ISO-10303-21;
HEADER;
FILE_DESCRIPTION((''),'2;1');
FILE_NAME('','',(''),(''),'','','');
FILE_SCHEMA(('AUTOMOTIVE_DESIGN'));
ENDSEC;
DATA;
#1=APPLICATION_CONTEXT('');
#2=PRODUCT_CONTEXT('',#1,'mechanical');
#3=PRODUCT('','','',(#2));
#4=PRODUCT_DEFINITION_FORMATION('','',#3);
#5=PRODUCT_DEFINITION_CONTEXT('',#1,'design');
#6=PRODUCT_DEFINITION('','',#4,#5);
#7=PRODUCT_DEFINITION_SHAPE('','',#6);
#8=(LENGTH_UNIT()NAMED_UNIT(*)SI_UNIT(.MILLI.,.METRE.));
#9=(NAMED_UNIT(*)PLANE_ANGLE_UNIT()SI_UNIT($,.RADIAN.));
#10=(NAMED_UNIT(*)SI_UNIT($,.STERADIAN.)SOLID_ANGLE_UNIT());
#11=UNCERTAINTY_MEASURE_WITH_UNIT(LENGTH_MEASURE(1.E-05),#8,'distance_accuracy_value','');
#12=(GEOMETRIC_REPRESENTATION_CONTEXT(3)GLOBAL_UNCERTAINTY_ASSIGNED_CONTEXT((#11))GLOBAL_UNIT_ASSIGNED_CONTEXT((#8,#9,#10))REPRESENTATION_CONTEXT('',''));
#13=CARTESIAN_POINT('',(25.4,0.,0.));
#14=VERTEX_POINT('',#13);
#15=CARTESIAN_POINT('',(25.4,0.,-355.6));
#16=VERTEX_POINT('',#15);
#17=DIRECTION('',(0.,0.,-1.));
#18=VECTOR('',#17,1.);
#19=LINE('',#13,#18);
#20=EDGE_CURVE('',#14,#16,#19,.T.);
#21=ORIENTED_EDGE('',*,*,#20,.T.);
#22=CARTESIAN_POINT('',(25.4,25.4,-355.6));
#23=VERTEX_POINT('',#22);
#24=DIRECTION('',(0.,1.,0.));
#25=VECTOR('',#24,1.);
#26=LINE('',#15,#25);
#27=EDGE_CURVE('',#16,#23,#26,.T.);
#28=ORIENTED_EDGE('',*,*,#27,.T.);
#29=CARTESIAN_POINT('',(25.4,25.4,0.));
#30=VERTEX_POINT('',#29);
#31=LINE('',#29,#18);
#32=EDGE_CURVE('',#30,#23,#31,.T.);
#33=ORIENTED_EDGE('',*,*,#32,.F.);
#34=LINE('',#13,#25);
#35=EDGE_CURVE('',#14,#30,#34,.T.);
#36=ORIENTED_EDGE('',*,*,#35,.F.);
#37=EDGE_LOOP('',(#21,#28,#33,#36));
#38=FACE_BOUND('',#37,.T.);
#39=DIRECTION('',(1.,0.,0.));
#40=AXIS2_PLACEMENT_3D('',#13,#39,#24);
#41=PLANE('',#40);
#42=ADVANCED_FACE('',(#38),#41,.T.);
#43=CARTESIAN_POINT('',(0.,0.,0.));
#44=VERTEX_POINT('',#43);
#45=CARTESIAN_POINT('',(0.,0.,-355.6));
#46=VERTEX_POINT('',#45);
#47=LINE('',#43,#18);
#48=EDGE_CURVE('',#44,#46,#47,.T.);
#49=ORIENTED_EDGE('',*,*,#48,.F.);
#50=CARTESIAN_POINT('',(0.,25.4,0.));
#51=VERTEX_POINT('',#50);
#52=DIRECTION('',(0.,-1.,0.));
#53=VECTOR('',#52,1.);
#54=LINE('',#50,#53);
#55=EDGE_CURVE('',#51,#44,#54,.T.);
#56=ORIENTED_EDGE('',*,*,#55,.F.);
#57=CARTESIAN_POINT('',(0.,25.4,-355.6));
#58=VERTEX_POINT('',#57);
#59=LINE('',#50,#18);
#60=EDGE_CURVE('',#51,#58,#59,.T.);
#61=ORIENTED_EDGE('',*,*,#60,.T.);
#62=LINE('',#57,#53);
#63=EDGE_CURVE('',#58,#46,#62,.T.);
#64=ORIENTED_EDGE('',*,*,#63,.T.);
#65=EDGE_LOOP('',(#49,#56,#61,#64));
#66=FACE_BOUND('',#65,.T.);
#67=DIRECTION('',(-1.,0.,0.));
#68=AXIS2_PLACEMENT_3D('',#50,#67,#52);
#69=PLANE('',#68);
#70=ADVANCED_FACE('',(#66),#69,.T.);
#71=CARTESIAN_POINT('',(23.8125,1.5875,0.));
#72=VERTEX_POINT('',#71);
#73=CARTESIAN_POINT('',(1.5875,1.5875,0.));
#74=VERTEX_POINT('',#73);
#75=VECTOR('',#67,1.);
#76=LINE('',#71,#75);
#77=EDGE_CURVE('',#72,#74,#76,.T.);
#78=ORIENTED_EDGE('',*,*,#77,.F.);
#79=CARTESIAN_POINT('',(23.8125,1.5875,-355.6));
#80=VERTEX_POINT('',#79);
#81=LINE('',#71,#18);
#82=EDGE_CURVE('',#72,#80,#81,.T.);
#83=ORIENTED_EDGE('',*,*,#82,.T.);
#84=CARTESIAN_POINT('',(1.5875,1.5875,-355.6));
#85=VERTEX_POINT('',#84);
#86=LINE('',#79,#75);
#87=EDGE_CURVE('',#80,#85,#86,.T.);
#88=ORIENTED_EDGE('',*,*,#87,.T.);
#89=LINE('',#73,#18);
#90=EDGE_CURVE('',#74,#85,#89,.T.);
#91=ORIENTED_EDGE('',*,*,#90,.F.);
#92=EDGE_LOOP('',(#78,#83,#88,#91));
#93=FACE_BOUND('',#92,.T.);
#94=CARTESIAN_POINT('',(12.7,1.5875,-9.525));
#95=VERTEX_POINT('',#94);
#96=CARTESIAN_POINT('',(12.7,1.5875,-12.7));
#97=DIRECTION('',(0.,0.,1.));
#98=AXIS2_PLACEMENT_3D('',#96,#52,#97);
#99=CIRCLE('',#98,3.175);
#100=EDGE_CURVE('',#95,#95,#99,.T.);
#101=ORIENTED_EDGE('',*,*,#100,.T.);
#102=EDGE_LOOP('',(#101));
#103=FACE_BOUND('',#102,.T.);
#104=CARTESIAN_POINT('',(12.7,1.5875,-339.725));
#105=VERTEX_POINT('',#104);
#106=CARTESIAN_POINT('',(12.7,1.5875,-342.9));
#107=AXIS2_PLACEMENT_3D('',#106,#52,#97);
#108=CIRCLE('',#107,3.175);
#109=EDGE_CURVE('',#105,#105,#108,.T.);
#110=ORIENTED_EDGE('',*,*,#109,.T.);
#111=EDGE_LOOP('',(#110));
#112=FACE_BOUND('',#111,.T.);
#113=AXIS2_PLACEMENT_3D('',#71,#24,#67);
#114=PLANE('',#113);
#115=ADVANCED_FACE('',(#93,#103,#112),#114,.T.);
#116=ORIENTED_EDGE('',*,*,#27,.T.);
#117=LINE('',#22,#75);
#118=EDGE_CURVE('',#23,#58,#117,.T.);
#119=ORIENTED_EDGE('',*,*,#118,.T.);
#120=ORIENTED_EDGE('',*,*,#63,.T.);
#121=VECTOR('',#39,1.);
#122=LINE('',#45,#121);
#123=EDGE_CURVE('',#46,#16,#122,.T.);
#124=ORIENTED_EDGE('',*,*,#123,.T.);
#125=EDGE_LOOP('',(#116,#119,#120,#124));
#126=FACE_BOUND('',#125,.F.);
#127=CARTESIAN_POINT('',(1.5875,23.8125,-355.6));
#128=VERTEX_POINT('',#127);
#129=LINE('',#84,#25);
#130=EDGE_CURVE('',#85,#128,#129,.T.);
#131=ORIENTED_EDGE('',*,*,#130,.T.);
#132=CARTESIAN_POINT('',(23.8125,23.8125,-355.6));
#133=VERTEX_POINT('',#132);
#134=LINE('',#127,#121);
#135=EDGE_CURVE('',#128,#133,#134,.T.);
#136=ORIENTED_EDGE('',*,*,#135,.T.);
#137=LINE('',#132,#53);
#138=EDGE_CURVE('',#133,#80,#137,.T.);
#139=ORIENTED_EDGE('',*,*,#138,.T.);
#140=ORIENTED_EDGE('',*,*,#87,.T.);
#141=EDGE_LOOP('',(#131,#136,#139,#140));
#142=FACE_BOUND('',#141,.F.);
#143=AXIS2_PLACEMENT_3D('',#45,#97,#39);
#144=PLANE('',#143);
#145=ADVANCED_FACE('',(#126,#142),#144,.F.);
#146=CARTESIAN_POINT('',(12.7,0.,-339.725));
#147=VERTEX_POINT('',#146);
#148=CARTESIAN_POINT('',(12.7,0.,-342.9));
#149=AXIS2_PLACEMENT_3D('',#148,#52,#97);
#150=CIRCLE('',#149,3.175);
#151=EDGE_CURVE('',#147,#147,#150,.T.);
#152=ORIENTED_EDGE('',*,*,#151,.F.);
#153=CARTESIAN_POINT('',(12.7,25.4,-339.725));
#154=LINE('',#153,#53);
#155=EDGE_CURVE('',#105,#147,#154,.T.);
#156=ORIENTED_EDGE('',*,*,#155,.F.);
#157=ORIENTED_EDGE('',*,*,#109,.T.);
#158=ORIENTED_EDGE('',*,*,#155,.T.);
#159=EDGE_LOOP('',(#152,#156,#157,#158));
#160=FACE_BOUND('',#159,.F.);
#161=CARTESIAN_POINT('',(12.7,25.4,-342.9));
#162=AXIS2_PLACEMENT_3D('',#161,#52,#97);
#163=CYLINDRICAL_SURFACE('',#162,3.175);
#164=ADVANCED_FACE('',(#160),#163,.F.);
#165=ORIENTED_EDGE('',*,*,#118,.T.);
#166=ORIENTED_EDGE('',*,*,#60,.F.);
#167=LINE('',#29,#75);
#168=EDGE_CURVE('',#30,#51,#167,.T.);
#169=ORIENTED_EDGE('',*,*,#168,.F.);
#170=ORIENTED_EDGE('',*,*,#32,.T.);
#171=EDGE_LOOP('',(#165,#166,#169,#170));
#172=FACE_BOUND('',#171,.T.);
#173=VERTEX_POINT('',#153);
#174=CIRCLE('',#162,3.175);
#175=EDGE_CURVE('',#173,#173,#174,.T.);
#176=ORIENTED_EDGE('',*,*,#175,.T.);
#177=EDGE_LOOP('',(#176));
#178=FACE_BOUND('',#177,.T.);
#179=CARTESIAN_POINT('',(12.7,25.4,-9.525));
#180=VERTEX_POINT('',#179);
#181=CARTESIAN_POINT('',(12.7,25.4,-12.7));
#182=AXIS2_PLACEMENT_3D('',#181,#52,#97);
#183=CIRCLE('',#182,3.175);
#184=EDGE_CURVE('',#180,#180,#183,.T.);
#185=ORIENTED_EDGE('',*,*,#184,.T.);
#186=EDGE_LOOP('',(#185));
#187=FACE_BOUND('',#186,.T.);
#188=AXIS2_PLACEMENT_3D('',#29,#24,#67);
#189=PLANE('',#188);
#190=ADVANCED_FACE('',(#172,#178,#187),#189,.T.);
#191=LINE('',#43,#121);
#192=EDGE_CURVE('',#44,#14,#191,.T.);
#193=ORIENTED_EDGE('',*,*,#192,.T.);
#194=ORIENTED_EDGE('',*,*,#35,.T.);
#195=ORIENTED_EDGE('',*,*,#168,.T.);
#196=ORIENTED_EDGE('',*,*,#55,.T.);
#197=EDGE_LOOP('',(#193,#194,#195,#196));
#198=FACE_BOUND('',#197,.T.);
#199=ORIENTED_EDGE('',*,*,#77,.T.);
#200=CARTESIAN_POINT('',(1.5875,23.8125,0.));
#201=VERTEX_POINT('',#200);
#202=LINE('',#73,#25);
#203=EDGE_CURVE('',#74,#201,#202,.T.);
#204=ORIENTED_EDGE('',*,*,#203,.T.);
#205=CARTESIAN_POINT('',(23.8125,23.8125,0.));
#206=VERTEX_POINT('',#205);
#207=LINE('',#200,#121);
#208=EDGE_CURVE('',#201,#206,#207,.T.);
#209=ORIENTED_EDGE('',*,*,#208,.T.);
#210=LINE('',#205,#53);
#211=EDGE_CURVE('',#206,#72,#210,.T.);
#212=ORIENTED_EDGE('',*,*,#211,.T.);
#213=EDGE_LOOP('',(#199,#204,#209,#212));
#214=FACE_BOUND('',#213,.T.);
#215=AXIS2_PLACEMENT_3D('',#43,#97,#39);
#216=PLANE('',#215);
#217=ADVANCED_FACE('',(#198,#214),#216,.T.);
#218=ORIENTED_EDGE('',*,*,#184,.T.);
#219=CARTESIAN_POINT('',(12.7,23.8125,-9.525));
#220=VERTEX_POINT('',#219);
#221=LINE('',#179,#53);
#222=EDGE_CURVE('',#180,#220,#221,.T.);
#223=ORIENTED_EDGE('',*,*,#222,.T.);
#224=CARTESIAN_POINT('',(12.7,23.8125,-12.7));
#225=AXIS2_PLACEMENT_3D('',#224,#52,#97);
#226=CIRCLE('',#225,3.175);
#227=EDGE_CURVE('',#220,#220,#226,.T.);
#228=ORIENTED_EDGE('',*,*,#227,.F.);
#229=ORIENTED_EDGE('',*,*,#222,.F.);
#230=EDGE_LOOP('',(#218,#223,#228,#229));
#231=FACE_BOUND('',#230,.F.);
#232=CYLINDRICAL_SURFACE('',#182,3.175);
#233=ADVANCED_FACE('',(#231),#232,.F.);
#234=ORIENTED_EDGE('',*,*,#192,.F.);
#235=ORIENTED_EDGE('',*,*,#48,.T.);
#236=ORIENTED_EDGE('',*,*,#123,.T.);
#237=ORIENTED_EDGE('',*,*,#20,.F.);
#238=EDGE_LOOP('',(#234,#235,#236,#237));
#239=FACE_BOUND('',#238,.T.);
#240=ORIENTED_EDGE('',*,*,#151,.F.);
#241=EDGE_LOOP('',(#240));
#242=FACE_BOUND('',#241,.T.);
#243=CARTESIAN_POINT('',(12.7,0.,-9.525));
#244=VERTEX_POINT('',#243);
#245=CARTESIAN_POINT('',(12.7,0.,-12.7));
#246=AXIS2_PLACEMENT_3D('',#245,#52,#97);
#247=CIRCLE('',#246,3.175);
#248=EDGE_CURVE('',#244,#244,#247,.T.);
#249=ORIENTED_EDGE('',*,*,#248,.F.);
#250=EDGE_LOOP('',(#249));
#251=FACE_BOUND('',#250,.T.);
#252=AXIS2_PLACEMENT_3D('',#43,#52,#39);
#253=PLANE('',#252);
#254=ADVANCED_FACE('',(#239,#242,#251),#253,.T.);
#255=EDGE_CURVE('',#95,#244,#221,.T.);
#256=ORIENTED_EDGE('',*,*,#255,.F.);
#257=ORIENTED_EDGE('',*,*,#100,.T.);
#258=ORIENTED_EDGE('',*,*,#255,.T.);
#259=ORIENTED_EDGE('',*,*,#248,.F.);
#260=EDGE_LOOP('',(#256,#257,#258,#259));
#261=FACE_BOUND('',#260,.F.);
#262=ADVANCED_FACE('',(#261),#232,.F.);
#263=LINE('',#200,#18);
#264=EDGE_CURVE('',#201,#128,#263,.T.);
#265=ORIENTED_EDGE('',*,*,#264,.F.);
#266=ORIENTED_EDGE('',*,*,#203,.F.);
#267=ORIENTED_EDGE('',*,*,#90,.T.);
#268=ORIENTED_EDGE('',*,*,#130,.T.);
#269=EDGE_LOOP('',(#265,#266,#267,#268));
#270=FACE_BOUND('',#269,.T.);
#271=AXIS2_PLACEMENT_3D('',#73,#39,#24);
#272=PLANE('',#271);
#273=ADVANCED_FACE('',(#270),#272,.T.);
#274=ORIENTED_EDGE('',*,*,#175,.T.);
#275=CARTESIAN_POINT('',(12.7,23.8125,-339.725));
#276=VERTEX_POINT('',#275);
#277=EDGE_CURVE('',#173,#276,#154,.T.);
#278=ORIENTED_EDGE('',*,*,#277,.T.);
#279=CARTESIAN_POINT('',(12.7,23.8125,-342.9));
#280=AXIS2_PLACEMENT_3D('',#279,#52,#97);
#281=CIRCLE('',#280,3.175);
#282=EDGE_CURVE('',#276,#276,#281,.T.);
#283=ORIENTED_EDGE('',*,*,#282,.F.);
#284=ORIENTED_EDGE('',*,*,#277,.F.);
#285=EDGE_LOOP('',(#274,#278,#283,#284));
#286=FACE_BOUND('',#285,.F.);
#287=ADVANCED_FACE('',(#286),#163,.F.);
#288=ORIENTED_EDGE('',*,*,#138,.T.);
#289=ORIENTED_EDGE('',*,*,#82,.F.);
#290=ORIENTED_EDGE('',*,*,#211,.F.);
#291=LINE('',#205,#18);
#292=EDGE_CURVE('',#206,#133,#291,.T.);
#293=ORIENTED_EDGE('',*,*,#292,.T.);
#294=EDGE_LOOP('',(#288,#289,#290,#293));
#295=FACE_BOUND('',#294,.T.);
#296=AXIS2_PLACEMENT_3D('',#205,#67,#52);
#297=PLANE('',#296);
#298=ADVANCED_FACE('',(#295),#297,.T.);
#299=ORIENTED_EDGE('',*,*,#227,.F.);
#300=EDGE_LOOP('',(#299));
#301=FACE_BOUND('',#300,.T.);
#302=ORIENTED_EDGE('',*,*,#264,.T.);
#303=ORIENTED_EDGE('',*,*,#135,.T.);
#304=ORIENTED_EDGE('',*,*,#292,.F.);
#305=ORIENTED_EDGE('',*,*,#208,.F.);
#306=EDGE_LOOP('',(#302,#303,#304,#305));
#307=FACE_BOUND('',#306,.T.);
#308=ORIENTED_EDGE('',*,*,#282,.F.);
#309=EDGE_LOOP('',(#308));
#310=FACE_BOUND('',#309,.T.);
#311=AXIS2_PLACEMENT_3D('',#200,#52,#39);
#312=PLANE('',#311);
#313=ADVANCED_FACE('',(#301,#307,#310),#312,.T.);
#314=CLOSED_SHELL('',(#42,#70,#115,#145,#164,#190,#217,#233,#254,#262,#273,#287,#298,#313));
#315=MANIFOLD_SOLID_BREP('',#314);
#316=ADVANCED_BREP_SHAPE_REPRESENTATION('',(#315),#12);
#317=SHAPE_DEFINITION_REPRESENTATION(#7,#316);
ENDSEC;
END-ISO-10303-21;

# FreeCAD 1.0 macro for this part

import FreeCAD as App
import Part
import Sketcher
from FreeCAD import Vector
Q = App.Units.Quantity


def add_polygon(sketch, points):
    """Adds a closed chain of lines whose ends are joined by coincident constraints."""
    first, n = sketch.GeometryCount, len(points)
    for a, b in zip(points, points[1:] + points[:1]):
        sketch.addGeometry(Part.LineSegment(App.Vector(*a, 0), App.Vector(*b, 0)), False)
    for i in range(n):
        sketch.addConstraint(Sketcher.Constraint("Coincident", first + i, 2, first + (i + 1) % n, 1))

doc = App.newDocument("Part")
params = doc.addObject("Spreadsheet::Sheet", "Params")
for row, (alias, value) in enumerate([
    ("sketch1_width", "1 in"),
    ("pad1_length", "14 in"),
    ("sketch2_diameter", "0.25 in"),
    ("hole_diameter", "0.25 in"),
    ("hole_depth", "1 in"),
], start=1):
    params.set(f"A{row}", alias)
    params.set(f"B{row}", "=" + value)
    params.setAlias(f"B{row}", alias)

body = doc.addObject("PartDesign::Body", "Body")

# Sketch on XY plane
sketch1 = body.newObject("Sketcher::SketchObject", "Sketch")
sketch1.AttachmentSupport = (doc.getObject("XY_Plane"), [""])
sketch1.MapMode = "FlatFace"
add_polygon(sketch1, [(0, 25.4), (0, 0), (25.4, 0), (25.4, 25.4)])  # lines 0-3
add_polygon(sketch1, [(1.5875, 1.5875), (1.5875, 23.8125), (23.8125, 23.8125), (23.8125, 1.5875)])  # lines 4-7
sketch1.addConstraint(Sketcher.Constraint("Vertical", 0))
sketch1.addConstraint(Sketcher.Constraint("Horizontal", 1))
sketch1.addConstraint(Sketcher.Constraint("Vertical", 2))
sketch1.addConstraint(Sketcher.Constraint("Horizontal", 3))
sketch1.addConstraint(Sketcher.Constraint("Vertical", 4))
sketch1.addConstraint(Sketcher.Constraint("Horizontal", 5))
sketch1.addConstraint(Sketcher.Constraint("Vertical", 6))
sketch1.addConstraint(Sketcher.Constraint("Horizontal", 7))
sketch1.addConstraint(Sketcher.Constraint("Coincident", 0, 2, -1, 1))
sketch1.addConstraint(Sketcher.Constraint("Equal", 3, 0))
sketch1.addConstraint(Sketcher.Constraint("Equal", 7, 4))
sketch1.addConstraint(Sketcher.Constraint("DistanceX", 1, 1, 1, 2, Q("1 in")))
sketch1.addConstraint(Sketcher.Constraint("DistanceX", -1, 1, 4, 2, Q("0.0625 in")))
sketch1.addConstraint(Sketcher.Constraint("DistanceY", -1, 1, 6, 2, Q("0.0625 in")))
sketch1.addConstraint(Sketcher.Constraint("DistanceY", 4, 2, 3, 2, Q("0.0625 in")))
sketch1.setExpression("Constraints[19]", "Params.sketch1_width")
pad1 = body.newObject("PartDesign::Pad", "Pad")
pad1.Profile = sketch1
pad1.setExpression("Length", "Params.pad1_length")
pad1.Reversed = True

# Sketch on XZ plane
sketch2 = body.newObject("Sketcher::SketchObject", "Sketch001")
sketch2.AttachmentSupport = (doc.getObject("XZ_Plane"), [""])
sketch2.MapMode = "FlatFace"
sketch2.AttachmentOffset = App.Placement(Vector(0, 0, -1 * 25.4), App.Rotation())
sketch2.addGeometry(Part.Circle(Vector(12.7, -12.7, 0), Vector(0, 0, 1), 3.175), False)
sketch2.addGeometry(Part.Circle(Vector(12.7, -342.9, 0), Vector(0, 0, 1), 3.175), False)
sketch2.addConstraint(Sketcher.Constraint("Equal", 0, 1))
sketch2.addConstraint(Sketcher.Constraint("Vertical", 0, 3, 1, 3))
sketch2.addConstraint(Sketcher.Constraint("Diameter", 0, Q("0.25 in")))
sketch2.addConstraint(Sketcher.Constraint("DistanceY", 1, 3, 0, 3, Q("13 in")))
sketch2.addConstraint(Sketcher.Constraint("DistanceX", -1, 1, 0, 3, Q("0.5 in")))
sketch2.addConstraint(Sketcher.Constraint("DistanceY", 0, 3, -1, 1, Q("0.5 in")))
sketch2.setExpression("Constraints[2]", "Params.sketch2_diameter")
doc.recompute()
hole = body.newObject("PartDesign::Hole", "Hole")
hole.Profile = sketch2
hole.ThreadType = "None"
hole.setExpression("Diameter", "Params.hole_diameter")
hole.DepthType = "Dimension"
hole.setExpression("Depth", "Params.hole_depth")
hole.DrillPoint = "Angled"
hole.DrillPointAngle = 118
hole.Reversed = True

doc.recompute()
